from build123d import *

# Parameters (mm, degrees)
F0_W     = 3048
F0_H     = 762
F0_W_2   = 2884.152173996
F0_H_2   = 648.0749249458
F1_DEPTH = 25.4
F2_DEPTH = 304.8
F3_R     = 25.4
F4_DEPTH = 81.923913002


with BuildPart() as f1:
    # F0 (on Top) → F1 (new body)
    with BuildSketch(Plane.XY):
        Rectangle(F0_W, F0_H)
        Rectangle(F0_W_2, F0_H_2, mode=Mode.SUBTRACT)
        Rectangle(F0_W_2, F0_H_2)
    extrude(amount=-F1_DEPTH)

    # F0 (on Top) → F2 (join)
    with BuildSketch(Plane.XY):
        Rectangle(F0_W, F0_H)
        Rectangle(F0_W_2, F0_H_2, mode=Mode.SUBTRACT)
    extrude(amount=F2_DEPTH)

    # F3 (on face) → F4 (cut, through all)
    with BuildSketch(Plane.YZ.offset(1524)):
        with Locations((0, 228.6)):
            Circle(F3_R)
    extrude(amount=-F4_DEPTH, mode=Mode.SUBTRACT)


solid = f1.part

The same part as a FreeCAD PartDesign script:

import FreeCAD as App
import Part
import Sketcher

V = App.Vector
Q = App.Units.Quantity


def add_polygon(sketch, points):
    """Adds a closed chain of lines whose ends are joined by coincident constraints."""
    first, n = sketch.GeometryCount, len(points)
    for a, b in zip(points, points[1:] + points[:1]):
        sketch.addGeometry(Part.LineSegment(App.Vector(*a, 0), App.Vector(*b, 0)), False)
    for i in range(n):
        sketch.addConstraint(Sketcher.Constraint("Coincident", first + i, 2, first + (i + 1) % n, 1))

doc = App.newDocument("Part")
params = doc.addObject("Spreadsheet::Sheet", "Params")
for row, (alias, value) in enumerate([
    ("sketch1_width", "120 in"),
    ("sketch1_height", "30 in"),
    ("pad1_length", "1 in"),
    ("sketch2_width", "120 in"),
    ("sketch2_height", "30 in"),
    ("pad2_length", "12 in"),
    ("sketch3_diameter", "2 in"),
    ("pocket1_length", "81.923913 mm"),
], start=1):
    params.set(f"A{row}", alias)
    params.set(f"B{row}", "=" + value)
    params.setAlias(f"B{row}", alias)

body = doc.addObject("PartDesign::Body", "Body")

# Sketch on XY plane
sketch1 = body.newObject("Sketcher::SketchObject", "Sketch")
sketch1.AttachmentSupport = (doc.getObject("XY_Plane"), [""])
sketch1.MapMode = "FlatFace"
add_polygon(sketch1, [(-1524, 381), (-1524, -381), (1524, -381), (1524, 381)])  # lines 0-3
sketch1.addConstraint([
    Sketcher.Constraint("Vertical", 0),
    Sketcher.Constraint("Horizontal", 1),
    Sketcher.Constraint("Vertical", 2),
    Sketcher.Constraint("Horizontal", 3),
    Sketcher.Constraint("Symmetric", 0, 2, 2, 2, -1, 1),
    Sketcher.Constraint("DistanceX", 1, 1, 1, 2, Q("120 in")),
    Sketcher.Constraint("DistanceY", 0, 2, 0, 1, Q("30 in")),
])
sketch1.setExpression("Constraints[9]", "Params.sketch1_width")
sketch1.setExpression("Constraints[10]", "Params.sketch1_height")
pad1 = body.newObject("PartDesign::Pad", "Pad")
pad1.Profile = sketch1
pad1.setExpression("Length", "Params.pad1_length")
pad1.Reversed = True

# Sketch on XY plane
sketch2 = body.newObject("Sketcher::SketchObject", "Sketch001")
sketch2.AttachmentSupport = (doc.getObject("XY_Plane"), [""])
sketch2.MapMode = "FlatFace"
add_polygon(sketch2, [(-1524, 381), (-1524, -381), (1524, -381), (1524, 381)])  # lines 0-3
add_polygon(sketch2, [(1442.076087, -324.037462), (-1442.076087, -324.037462), (-1442.076087, 324.037462), (1442.076087, 324.037462)])  # lines 4-7
sketch2.addConstraint([
    Sketcher.Constraint("Vertical", 0),
    Sketcher.Constraint("Horizontal", 1),
    Sketcher.Constraint("Vertical", 2),
    Sketcher.Constraint("Horizontal", 3),
    Sketcher.Constraint("Horizontal", 4),
    Sketcher.Constraint("Vertical", 5),
    Sketcher.Constraint("Horizontal", 6),
    Sketcher.Constraint("Vertical", 7),
    Sketcher.Constraint("Symmetric", 0, 2, 2, 2, -1, 1),
    Sketcher.Constraint("Symmetric", 4, 2, 6, 2, -1, 1),
    Sketcher.Constraint("DistanceX", 1, 1, 1, 2, Q("120 in")),
    Sketcher.Constraint("DistanceY", 0, 2, 0, 1, Q("30 in")),
    Sketcher.Constraint("DistanceX", 4, 2, 4, 1, 2884.152174),
    Sketcher.Constraint("DistanceY", 5, 1, 5, 2, 648.074925),
])
sketch2.setExpression("Constraints[18]", "Params.sketch2_width")
sketch2.setExpression("Constraints[19]", "Params.sketch2_height")
pad2 = body.newObject("PartDesign::Pad", "Pad001")
pad2.Profile = sketch2
pad2.setExpression("Length", "Params.pad2_length")

# Sketch on YZ plane
sketch3 = body.newObject("Sketcher::SketchObject", "Sketch002")
sketch3.AttachmentSupport = (doc.getObject("YZ_Plane"), [""])
sketch3.MapMode = "FlatFace"
sketch3.AttachmentOffset = App.Placement(V(0, 0, 60 * 25.4), App.Rotation())
sketch3.addGeometry(Part.Circle(V(0, 228.6, 0), V(0, 0, 1), 25.4), False)
sketch3.addConstraint([
    Sketcher.Constraint("PointOnObject", 0, 3, -2),
    Sketcher.Constraint("Diameter", 0, Q("2 in")),
    Sketcher.Constraint("DistanceY", -1, 1, 0, 3, Q("9 in")),
])
sketch3.setExpression("Constraints[1]", "Params.sketch3_diameter")
pocket1 = body.newObject("PartDesign::Pocket", "Pocket")
pocket1.Profile = sketch3
pocket1.setExpression("Length", "Params.pocket1_length")

doc.recompute()
